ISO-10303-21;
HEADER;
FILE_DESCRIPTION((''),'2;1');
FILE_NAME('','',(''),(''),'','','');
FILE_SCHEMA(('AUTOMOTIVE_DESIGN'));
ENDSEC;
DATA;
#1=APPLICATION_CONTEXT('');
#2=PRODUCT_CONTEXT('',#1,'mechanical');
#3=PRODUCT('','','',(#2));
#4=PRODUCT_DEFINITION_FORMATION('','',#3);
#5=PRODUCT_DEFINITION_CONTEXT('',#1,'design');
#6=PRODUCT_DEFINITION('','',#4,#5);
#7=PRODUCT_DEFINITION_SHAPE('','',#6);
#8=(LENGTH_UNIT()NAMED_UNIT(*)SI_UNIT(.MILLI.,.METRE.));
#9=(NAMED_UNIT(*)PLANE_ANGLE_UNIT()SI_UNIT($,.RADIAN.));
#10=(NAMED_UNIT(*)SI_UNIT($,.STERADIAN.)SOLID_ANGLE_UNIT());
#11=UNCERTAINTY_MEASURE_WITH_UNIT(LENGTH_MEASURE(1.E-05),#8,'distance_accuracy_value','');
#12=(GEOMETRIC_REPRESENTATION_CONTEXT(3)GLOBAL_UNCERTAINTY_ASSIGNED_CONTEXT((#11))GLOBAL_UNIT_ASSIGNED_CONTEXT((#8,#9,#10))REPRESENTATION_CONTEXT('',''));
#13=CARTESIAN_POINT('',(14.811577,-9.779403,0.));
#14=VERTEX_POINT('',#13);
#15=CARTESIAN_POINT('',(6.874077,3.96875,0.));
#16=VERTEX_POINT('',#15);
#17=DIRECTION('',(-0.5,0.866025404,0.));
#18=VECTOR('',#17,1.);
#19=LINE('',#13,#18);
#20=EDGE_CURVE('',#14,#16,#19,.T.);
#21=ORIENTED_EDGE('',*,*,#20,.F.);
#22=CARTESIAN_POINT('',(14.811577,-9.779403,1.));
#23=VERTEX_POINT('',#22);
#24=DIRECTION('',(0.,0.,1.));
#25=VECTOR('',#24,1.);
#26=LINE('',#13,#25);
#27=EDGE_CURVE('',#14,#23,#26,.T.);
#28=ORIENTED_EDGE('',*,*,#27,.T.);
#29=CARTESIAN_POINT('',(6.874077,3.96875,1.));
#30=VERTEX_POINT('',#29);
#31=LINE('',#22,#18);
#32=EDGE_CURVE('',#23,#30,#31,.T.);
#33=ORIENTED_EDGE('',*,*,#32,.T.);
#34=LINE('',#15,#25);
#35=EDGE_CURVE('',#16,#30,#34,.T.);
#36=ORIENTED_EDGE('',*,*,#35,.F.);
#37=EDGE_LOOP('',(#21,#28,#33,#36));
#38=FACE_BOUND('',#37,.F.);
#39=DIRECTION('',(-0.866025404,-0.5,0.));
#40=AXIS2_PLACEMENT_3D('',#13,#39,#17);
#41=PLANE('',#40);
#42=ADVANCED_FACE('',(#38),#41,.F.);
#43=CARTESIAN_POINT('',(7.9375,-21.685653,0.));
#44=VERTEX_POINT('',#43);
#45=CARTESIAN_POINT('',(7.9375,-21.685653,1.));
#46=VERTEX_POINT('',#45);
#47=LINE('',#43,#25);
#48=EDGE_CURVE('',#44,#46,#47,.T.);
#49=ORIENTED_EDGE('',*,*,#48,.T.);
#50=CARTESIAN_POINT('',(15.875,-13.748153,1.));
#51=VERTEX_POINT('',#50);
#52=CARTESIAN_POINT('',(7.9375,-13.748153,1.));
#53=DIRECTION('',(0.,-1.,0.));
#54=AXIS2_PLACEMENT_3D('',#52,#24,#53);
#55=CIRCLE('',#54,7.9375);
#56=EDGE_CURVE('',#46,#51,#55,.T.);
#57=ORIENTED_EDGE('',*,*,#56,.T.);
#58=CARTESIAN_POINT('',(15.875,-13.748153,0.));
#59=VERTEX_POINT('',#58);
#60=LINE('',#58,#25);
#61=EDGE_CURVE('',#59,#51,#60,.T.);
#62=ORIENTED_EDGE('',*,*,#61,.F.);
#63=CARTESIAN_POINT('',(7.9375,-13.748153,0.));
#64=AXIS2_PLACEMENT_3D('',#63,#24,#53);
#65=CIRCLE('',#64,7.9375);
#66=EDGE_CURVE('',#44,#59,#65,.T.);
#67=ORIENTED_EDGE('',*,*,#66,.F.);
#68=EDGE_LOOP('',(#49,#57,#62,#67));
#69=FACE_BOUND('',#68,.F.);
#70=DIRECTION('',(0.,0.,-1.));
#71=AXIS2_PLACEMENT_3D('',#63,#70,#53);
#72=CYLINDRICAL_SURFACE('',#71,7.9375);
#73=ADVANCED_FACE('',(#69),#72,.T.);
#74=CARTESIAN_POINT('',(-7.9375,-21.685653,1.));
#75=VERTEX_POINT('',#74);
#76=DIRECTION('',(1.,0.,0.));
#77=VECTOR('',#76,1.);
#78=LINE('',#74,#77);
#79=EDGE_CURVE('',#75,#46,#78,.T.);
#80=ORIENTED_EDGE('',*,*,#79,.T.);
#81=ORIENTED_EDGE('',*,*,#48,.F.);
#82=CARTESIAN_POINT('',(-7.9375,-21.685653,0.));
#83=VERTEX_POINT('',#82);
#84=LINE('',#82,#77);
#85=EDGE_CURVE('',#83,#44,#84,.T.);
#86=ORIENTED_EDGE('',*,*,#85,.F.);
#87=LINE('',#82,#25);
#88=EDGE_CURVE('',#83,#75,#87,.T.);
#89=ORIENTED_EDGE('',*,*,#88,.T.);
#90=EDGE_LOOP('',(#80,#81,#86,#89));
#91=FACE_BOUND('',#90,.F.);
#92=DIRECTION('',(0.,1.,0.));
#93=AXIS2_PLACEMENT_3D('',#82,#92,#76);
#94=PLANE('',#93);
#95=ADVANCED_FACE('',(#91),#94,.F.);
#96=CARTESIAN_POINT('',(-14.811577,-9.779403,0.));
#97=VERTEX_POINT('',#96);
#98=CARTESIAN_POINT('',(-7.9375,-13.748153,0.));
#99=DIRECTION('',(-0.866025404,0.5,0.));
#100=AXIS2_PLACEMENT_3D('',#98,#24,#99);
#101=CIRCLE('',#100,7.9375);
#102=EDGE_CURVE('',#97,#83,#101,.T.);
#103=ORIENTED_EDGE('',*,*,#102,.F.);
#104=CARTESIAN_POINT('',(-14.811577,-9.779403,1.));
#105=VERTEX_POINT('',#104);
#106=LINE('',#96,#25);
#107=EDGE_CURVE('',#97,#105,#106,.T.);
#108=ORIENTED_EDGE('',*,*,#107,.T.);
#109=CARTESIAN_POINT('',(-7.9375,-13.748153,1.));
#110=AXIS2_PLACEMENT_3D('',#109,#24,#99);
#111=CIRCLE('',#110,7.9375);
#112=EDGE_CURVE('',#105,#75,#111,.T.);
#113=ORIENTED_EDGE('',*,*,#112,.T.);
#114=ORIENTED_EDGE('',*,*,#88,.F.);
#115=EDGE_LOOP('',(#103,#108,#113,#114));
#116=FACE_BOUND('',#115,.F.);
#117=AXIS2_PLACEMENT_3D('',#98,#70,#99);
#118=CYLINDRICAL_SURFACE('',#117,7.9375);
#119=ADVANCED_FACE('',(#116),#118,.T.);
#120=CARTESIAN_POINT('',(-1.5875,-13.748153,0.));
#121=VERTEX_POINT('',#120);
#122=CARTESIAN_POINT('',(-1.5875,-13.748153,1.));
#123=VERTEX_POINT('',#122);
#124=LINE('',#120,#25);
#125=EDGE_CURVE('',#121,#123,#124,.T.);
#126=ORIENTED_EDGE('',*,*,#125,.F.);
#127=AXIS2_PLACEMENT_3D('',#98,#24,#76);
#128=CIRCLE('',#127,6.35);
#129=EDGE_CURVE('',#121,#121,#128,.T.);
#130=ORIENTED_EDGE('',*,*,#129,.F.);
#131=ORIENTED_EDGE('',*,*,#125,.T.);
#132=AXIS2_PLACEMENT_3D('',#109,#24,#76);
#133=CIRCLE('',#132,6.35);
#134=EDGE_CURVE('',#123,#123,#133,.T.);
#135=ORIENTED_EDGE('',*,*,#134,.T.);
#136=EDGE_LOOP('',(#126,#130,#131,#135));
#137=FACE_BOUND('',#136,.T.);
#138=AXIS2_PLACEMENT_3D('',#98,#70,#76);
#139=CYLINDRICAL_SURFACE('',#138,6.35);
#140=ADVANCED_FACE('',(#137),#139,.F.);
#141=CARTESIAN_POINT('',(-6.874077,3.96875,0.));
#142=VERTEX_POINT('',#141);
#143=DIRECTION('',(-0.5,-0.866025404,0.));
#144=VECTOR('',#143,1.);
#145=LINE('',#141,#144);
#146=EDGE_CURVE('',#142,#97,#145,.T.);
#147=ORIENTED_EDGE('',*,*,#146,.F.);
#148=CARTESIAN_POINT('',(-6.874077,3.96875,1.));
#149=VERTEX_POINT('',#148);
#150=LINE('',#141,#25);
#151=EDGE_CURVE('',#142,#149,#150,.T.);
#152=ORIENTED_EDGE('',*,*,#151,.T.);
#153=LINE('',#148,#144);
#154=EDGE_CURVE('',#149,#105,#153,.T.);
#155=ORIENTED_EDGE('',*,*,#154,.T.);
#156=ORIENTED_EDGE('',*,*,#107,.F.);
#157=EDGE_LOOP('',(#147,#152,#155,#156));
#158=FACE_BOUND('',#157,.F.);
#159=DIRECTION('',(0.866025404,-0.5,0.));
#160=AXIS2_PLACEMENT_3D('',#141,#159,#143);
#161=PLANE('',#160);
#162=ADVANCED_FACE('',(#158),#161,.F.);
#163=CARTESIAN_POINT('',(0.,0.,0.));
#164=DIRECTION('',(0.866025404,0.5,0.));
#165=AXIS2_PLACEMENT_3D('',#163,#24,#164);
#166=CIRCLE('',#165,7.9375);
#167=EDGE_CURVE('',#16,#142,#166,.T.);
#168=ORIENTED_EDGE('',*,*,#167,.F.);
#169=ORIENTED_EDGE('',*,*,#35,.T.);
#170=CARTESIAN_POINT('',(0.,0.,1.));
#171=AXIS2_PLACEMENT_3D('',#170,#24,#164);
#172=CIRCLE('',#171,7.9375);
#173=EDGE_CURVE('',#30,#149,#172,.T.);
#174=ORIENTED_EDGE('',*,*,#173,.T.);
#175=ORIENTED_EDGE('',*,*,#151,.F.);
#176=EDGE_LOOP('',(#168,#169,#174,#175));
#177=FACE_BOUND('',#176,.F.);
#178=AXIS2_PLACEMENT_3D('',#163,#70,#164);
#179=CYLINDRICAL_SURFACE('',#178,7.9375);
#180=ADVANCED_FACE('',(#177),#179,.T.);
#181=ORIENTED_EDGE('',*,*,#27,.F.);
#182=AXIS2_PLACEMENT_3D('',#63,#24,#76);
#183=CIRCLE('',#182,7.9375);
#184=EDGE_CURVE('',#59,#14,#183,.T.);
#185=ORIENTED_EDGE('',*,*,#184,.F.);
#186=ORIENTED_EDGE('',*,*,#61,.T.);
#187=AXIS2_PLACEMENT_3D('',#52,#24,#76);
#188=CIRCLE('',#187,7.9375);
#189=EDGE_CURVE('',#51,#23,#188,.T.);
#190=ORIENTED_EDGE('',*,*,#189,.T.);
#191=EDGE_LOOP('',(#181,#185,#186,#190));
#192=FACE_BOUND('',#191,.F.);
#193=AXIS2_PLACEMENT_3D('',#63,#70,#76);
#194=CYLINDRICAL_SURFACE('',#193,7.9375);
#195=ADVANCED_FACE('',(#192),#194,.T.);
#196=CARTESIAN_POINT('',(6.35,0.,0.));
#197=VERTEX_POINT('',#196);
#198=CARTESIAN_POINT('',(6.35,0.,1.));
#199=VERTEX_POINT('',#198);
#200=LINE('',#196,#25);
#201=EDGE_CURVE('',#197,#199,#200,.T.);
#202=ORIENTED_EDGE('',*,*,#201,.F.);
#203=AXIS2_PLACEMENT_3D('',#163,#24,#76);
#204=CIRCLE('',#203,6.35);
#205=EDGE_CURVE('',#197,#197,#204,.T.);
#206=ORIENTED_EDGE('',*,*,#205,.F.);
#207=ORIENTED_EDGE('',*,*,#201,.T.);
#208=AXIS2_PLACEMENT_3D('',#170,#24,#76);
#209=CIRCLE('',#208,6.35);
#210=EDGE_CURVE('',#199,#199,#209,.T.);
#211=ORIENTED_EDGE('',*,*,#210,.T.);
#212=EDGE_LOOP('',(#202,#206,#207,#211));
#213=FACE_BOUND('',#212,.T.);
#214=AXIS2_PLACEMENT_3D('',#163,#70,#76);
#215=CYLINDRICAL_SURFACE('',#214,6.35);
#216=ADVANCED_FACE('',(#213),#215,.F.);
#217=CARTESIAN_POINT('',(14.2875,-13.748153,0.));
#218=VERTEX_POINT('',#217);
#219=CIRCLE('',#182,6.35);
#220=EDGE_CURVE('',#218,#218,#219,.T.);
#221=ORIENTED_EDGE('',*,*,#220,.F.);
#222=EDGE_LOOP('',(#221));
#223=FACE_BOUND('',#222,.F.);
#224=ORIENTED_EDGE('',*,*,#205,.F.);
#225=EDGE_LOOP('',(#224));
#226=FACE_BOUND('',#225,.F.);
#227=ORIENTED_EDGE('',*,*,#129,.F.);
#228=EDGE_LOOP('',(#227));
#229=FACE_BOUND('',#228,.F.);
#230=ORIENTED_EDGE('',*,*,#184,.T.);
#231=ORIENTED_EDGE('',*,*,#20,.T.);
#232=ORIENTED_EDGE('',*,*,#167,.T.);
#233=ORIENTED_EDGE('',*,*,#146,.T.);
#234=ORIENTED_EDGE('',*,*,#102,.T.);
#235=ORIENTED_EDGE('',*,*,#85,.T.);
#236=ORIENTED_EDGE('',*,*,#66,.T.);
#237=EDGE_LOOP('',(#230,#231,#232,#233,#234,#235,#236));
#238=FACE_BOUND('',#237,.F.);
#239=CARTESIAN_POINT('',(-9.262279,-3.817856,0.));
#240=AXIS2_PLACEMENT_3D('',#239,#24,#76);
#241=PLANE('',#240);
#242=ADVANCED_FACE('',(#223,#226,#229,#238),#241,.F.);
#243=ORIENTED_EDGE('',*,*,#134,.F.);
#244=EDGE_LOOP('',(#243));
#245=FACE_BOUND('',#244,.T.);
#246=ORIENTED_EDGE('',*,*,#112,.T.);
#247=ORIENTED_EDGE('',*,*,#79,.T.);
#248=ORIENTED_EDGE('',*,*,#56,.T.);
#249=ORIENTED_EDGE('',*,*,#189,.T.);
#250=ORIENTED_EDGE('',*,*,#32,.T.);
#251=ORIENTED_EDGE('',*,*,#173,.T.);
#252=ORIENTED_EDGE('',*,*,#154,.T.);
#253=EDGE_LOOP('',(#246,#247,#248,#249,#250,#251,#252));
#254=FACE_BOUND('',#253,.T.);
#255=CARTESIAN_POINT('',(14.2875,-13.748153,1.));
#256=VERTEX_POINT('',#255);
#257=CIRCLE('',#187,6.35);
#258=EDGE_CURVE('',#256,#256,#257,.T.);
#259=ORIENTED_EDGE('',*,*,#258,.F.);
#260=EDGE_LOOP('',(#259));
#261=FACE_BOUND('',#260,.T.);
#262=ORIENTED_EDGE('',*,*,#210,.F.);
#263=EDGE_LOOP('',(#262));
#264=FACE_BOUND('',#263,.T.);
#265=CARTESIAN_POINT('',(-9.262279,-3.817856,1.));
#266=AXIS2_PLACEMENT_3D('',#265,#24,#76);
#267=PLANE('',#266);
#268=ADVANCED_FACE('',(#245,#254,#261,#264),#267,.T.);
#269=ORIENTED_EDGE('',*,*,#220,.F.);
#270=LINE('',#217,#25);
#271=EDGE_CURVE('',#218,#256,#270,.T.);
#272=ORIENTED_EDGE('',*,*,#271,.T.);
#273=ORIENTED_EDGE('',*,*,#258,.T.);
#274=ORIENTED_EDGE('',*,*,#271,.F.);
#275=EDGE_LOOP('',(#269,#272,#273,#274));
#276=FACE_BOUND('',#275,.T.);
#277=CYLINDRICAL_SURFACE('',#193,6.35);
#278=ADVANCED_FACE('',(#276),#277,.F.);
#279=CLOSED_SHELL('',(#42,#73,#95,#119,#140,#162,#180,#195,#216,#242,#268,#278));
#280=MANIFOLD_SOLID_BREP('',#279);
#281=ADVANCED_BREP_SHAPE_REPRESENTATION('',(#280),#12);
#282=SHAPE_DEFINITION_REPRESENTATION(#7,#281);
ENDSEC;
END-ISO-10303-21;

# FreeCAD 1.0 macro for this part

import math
import FreeCAD as App
import Part
import Sketcher
from FreeCAD import Vector
Q = App.Units.Quantity

doc = App.newDocument("Part")
body = doc.addObject("PartDesign::Body", "Body")

# Sketch on XY plane
sketch1 = doc.addObject("Sketcher::SketchObject", "Sketch")
body.addObject(sketch1)
sketch1.AttachmentSupport = (doc.XY_Plane, [""])
sketch1.MapMode = "FlatFace"
sketch1.addGeometry([
    Part.LineSegment(Vector(-6.9, 4, 0), Vector(-14.8, -9.8, 0)),  # 0
    Part.ArcOfCircle(Part.Circle(Vector(-7.9, -13.7, 0), Vector(0, 0, 1), 7.9), math.radians(150), math.radians(270)),  # 1
    Part.LineSegment(Vector(-7.9, -21.7, 0), Vector(7.9, -21.7, 0)),  # 2
    Part.ArcOfCircle(Part.Circle(Vector(7.9, -13.7, 0), Vector(0, 0, 1), 7.9), math.radians(-90), math.radians(0)),  # 3
    Part.ArcOfCircle(Part.Circle(Vector(7.9, -13.7, 0), Vector(0, 0, 1), 7.9), math.radians(0), math.radians(30)),  # 4
    Part.LineSegment(Vector(14.8, -9.8, 0), Vector(6.9, 4, 0)),  # 5
    Part.ArcOfCircle(Part.Circle(Vector(0, 0, 0), Vector(0, 0, 1), 7.9), math.radians(30), math.radians(150)),  # 6
    Part.Circle(Vector(-7.9, -13.7, 0), Vector(0, 0, 1), 6.3),  # 7
    Part.Circle(Vector(7.9, -13.7, 0), Vector(0, 0, 1), 6.3),  # 8
    Part.Circle(Vector(0, 0, 0), Vector(0, 0, 1), 6.3),  # 9
], False)
sketch1.addConstraint([
    Sketcher.Constraint("Tangent", 0, 2, 1, 1),
    Sketcher.Constraint("Tangent", 1, 2, 2, 1),
    Sketcher.Constraint("Tangent", 2, 2, 3, 1),
    Sketcher.Constraint("Tangent", 3, 2, 4, 1),
    Sketcher.Constraint("Tangent", 4, 2, 5, 1),
    Sketcher.Constraint("Tangent", 5, 2, 6, 1),
    Sketcher.Constraint("Tangent", 6, 2, 0, 1),
    Sketcher.Constraint("Horizontal", 2),
    Sketcher.Constraint("Coincident", 6, 3, -1, 1),
    Sketcher.Constraint("Coincident", 9, 3, -1, 1),
    Sketcher.Constraint("Coincident", 7, 3, 1, 3),
    Sketcher.Constraint("Coincident", 8, 3, 3, 3),
    Sketcher.Constraint("Equal", 1, 3),
    Sketcher.Constraint("Equal", 3, 4),
    Sketcher.Constraint("Equal", 4, 6),
    Sketcher.Constraint("Equal", 7, 8),
    Sketcher.Constraint("Equal", 8, 9),
    Sketcher.Constraint("Horizontal", 8, 3, 3, 2),
    Sketcher.Constraint("Horizontal", 0, 2, 4, 2),
    Sketcher.Constraint("Diameter", 7, Q("0.5 in")),
    Sketcher.Constraint("Angle", 0, Q("-120 deg")),
    Sketcher.Constraint("Radius", 1, Q("0.3125 in")),
    Sketcher.Constraint("DistanceX", 2, 1, 2, 2, Q("0.625 in")),
])
pad1 = doc.addObject("PartDesign::Pad", "Pad")
body.addObject(pad1)
pad1.Profile = sketch1
pad1.Length = 1

doc.recompute()
